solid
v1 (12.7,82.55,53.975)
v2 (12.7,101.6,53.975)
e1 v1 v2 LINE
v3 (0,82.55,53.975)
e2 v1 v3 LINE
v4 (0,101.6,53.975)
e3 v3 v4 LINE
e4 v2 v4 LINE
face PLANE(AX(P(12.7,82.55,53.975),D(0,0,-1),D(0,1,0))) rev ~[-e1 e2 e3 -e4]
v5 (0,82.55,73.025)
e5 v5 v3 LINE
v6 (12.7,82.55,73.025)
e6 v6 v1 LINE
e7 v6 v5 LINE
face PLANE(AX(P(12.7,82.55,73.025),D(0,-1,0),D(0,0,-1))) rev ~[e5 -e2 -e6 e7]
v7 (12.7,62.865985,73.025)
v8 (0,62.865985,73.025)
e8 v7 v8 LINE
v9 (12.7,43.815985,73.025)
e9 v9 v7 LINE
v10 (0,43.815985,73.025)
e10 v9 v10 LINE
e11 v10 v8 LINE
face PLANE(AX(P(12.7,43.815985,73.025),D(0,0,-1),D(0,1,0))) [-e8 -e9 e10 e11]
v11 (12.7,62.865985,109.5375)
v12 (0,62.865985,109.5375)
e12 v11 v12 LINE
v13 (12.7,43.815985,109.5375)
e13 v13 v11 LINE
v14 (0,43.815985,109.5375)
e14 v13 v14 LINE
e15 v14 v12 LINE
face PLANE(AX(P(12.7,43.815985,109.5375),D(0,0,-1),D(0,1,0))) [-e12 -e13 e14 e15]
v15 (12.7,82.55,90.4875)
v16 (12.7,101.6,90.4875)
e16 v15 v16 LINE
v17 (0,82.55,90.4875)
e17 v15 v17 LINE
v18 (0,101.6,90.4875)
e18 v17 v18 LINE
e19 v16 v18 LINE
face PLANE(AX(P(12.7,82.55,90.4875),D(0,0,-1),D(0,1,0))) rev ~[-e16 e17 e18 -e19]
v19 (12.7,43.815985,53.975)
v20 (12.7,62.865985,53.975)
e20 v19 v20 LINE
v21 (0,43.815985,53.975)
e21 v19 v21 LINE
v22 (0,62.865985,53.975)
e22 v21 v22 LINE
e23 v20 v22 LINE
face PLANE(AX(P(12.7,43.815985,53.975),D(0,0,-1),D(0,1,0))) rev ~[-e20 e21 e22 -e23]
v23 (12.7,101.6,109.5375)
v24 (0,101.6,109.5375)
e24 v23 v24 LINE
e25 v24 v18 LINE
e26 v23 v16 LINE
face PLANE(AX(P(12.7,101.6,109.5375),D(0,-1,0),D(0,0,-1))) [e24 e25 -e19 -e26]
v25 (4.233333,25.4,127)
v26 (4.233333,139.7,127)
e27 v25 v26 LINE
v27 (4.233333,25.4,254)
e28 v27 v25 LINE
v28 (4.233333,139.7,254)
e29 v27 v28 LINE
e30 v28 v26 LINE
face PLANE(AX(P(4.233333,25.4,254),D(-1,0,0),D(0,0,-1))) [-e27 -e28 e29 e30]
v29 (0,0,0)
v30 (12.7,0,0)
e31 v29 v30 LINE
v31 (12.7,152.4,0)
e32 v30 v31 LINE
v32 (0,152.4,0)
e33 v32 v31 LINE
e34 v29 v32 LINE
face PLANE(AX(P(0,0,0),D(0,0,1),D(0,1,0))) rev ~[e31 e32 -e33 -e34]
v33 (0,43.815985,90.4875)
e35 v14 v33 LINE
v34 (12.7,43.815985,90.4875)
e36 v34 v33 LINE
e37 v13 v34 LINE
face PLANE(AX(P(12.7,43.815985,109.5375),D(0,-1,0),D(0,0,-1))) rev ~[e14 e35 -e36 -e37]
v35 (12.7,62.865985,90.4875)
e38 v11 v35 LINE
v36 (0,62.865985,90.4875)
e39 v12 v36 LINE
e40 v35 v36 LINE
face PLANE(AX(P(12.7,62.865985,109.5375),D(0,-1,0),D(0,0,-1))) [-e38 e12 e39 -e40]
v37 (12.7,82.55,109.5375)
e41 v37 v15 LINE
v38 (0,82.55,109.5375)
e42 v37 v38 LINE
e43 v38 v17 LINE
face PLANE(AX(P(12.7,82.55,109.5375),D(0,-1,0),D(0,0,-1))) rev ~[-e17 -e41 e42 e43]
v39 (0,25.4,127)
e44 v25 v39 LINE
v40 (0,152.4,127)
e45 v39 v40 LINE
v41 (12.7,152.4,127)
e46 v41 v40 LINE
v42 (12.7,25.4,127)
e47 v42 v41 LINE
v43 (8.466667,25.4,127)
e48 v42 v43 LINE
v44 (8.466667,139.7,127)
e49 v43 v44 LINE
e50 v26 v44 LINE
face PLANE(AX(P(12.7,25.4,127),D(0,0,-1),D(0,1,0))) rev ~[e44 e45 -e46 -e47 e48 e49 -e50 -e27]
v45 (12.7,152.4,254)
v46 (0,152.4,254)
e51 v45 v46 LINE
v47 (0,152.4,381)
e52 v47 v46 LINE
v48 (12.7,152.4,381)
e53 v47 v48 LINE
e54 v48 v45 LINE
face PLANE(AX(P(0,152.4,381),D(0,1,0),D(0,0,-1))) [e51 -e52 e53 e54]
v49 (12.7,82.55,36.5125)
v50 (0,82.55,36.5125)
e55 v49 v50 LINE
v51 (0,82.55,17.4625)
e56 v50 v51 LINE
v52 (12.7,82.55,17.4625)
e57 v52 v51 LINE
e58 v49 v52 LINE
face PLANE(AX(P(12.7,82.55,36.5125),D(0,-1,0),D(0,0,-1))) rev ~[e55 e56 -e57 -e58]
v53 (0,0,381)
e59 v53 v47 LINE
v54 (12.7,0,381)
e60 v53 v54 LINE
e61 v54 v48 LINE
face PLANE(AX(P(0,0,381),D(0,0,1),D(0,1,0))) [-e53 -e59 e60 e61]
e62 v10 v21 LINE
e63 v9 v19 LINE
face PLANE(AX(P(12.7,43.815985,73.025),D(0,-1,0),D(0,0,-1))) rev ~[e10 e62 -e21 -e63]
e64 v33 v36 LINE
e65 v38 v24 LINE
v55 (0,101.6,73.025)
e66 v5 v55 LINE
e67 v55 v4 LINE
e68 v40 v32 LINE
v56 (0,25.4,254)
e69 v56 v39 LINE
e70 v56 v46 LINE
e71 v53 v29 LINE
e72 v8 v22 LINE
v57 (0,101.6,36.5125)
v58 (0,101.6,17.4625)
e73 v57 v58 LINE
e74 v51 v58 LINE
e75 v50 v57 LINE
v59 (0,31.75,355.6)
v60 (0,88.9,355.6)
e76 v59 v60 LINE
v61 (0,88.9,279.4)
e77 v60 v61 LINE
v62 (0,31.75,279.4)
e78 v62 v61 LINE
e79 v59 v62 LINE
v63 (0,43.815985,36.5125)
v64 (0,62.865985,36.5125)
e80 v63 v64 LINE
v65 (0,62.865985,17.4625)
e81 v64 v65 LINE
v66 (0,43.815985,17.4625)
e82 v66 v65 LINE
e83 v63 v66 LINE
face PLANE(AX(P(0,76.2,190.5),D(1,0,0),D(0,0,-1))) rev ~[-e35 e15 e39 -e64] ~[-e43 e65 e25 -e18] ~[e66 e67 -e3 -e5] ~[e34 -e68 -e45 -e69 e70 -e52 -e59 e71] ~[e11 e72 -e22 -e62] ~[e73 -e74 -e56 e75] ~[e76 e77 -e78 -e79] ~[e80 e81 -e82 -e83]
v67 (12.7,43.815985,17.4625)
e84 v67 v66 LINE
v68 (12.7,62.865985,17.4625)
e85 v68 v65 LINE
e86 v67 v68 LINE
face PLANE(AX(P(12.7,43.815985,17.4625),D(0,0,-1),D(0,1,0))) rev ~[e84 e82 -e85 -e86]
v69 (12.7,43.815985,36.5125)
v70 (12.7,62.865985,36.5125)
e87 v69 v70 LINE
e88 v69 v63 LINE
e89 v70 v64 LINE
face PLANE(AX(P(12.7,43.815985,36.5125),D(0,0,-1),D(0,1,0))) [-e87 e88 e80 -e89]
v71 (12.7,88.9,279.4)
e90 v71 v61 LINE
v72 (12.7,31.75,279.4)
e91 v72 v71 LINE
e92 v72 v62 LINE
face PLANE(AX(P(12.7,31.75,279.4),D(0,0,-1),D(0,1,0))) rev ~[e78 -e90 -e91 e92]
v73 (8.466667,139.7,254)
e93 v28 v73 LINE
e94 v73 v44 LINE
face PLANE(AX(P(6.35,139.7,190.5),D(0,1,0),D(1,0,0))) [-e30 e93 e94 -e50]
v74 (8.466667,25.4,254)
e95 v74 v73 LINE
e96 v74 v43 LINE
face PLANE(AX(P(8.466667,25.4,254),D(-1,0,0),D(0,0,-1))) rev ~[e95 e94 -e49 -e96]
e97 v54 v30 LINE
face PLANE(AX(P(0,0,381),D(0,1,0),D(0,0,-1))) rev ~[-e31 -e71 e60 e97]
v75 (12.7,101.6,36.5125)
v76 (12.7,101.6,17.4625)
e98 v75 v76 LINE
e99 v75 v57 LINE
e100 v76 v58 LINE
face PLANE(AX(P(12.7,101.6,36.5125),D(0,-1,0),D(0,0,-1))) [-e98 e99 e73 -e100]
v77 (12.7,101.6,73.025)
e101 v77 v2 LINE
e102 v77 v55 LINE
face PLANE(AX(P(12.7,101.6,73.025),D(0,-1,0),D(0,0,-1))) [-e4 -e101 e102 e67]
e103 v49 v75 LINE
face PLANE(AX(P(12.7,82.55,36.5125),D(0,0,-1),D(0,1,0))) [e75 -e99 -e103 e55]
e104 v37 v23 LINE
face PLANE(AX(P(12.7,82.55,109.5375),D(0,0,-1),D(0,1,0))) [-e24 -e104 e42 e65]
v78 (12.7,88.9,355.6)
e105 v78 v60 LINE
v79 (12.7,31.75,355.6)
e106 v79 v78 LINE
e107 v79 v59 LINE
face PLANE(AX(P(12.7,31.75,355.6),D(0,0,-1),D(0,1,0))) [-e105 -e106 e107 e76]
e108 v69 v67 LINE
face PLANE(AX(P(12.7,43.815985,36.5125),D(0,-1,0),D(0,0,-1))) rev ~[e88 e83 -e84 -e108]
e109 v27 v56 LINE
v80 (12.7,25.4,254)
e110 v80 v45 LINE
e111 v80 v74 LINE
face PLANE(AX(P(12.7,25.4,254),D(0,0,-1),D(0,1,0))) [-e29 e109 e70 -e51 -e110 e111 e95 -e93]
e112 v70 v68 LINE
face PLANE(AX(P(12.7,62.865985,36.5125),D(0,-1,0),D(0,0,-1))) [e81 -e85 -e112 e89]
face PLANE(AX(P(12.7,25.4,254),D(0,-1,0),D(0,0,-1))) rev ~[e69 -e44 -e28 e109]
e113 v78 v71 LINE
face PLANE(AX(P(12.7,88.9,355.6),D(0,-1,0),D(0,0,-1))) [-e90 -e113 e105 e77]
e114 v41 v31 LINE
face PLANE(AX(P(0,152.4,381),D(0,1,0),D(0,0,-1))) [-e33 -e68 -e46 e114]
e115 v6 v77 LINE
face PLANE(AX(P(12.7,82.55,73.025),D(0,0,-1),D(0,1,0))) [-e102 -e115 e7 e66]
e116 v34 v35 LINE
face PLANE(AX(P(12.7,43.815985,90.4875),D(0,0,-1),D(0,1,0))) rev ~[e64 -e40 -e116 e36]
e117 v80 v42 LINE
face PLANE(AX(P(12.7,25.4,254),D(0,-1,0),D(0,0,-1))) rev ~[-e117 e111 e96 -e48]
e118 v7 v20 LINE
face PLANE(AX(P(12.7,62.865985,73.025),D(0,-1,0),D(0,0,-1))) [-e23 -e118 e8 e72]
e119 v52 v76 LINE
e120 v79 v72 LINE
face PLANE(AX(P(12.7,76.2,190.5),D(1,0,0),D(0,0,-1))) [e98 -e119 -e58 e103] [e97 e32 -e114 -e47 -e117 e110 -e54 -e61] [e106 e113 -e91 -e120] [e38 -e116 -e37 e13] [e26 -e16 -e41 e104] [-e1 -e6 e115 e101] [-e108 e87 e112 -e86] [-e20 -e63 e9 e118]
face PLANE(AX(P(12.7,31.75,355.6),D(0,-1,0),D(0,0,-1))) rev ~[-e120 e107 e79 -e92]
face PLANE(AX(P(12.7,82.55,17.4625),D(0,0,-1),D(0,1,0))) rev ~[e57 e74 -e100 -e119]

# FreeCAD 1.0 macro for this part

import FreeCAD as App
import Part
import Sketcher
from FreeCAD import Vector
Q = App.Units.Quantity

doc = App.newDocument("Part")
body = doc.addObject("PartDesign::Body", "Body")

sketch1 = body.newObject("Sketcher::SketchObject", "Sketch")
sketch1.AttachmentSupport = (doc.getObject("YZ_Plane"), [""])
sketch1.MapMode = "FlatFace"
sketch1.addGeometry(Part.LineSegment(Vector(152, 381, 0), Vector(0, 381, 0)), False)
sketch1.addGeometry(Part.LineSegment(Vector(0, 381, 0), Vector(0, 0, 0)), False)
sketch1.addGeometry(Part.LineSegment(Vector(0, 0, 0), Vector(152, 0, 0)), False)
sketch1.addGeometry(Part.LineSegment(Vector(152, 0, 0), Vector(152, 381, 0)), False)
sketch1.addConstraint(Sketcher.Constraint("Coincident", 0, 2, 1, 1))
sketch1.addConstraint(Sketcher.Constraint("Coincident", 1, 2, 2, 1))
sketch1.addConstraint(Sketcher.Constraint("Coincident", 2, 2, 3, 1))
sketch1.addConstraint(Sketcher.Constraint("Coincident", 3, 2, 0, 1))
sketch1.addConstraint(Sketcher.Constraint("Horizontal", 0))
sketch1.addConstraint(Sketcher.Constraint("Vertical", 1))
sketch1.addConstraint(Sketcher.Constraint("Horizontal", 2))
sketch1.addConstraint(Sketcher.Constraint("Vertical", 3))
sketch1.addConstraint(Sketcher.Constraint("Coincident", 1, 2, -1, 1))
sketch1.addConstraint(Sketcher.Constraint("DistanceX", 0, 2, 0, 1, Q("6 in")))
sketch1.addConstraint(Sketcher.Constraint("DistanceY", 1, 2, 1, 1, Q("15 in")))
pad1 = body.newObject("PartDesign::Pad", "Pad")
pad1.Profile = sketch1
pad1.Length = Q("0.5 in")

sketch2 = body.newObject("Sketcher::SketchObject", "Sketch001")
sketch2.AttachmentSupport = (doc.getObject("YZ_Plane"), [""])
sketch2.MapMode = "FlatFace"
sketch2.AttachmentOffset = App.Placement(Vector(0, 0, 0.5 * 25.4), App.Rotation())
sketch2.addGeometry(Part.LineSegment(Vector(152, 254, 0), Vector(25, 254, 0)), False)
sketch2.addGeometry(Part.LineSegment(Vector(25, 254, 0), Vector(25, 127, 0)), False)
sketch2.addGeometry(Part.LineSegment(Vector(25, 127, 0), Vector(152, 127, 0)), False)
sketch2.addGeometry(Part.LineSegment(Vector(152, 127, 0), Vector(152, 254, 0)), False)
sketch2.addConstraint(Sketcher.Constraint("Coincident", 0, 2, 1, 1))
sketch2.addConstraint(Sketcher.Constraint("Coincident", 1, 2, 2, 1))
sketch2.addConstraint(Sketcher.Constraint("Coincident", 2, 2, 3, 1))
sketch2.addConstraint(Sketcher.Constraint("Coincident", 3, 2, 0, 1))
sketch2.addConstraint(Sketcher.Constraint("Horizontal", 0))
sketch2.addConstraint(Sketcher.Constraint("Vertical", 1))
sketch2.addConstraint(Sketcher.Constraint("Horizontal", 2))
sketch2.addConstraint(Sketcher.Constraint("Vertical", 3))
sketch2.addConstraint(Sketcher.Constraint("Equal", 2, 1))
sketch2.addConstraint(Sketcher.Constraint("DistanceX", 0, 2, 0, 1, Q("5 in")))
sketch2.addConstraint(Sketcher.Constraint("DistanceX", -1, 1, 0, 2, Q("1 in")))
sketch2.addConstraint(Sketcher.Constraint("DistanceY", -1, 1, 0, 2, Q("10 in")))
pocket1 = body.newObject("PartDesign::Pocket", "Pocket")
pocket1.Profile = sketch2
pocket1.Length = Q("0.5 in")

sketch3 = body.newObject("Sketcher::SketchObject", "Sketch002")
sketch3.AttachmentSupport = (doc.getObject("YZ_Plane"), [""])
sketch3.MapMode = "FlatFace"
sketch3.AttachmentOffset = App.Placement(Vector(0, 0, 0.5 * 25.4), App.Rotation())
sketch3.addGeometry(Part.LineSegment(Vector(102, 110, 0), Vector(83, 110, 0)), False)
sketch3.addGeometry(Part.LineSegment(Vector(83, 110, 0), Vector(83, 90, 0)), False)
sketch3.addGeometry(Part.LineSegment(Vector(83, 90, 0), Vector(102, 90, 0)), False)
sketch3.addGeometry(Part.LineSegment(Vector(102, 90, 0), Vector(102, 110, 0)), False)
sketch3.addGeometry(Part.LineSegment(Vector(102, 73, 0), Vector(83, 73, 0)), False)
sketch3.addGeometry(Part.LineSegment(Vector(83, 73, 0), Vector(83, 54, 0)), False)
sketch3.addGeometry(Part.LineSegment(Vector(83, 54, 0), Vector(102, 54, 0)), False)
sketch3.addGeometry(Part.LineSegment(Vector(102, 54, 0), Vector(102, 73, 0)), False)
sketch3.addGeometry(Part.LineSegment(Vector(102, 37, 0), Vector(83, 37, 0)), False)
sketch3.addGeometry(Part.LineSegment(Vector(83, 37, 0), Vector(83, 17, 0)), False)
sketch3.addGeometry(Part.LineSegment(Vector(83, 17, 0), Vector(102, 17, 0)), False)
sketch3.addGeometry(Part.LineSegment(Vector(102, 17, 0), Vector(102, 37, 0)), False)
sketch3.addGeometry(Part.LineSegment(Vector(63, 110, 0), Vector(44, 110, 0)), False)
sketch3.addGeometry(Part.LineSegment(Vector(44, 110, 0), Vector(44, 90, 0)), False)
sketch3.addGeometry(Part.LineSegment(Vector(44, 90, 0), Vector(63, 90, 0)), False)
sketch3.addGeometry(Part.LineSegment(Vector(63, 90, 0), Vector(63, 110, 0)), False)
sketch3.addGeometry(Part.LineSegment(Vector(63, 73, 0), Vector(44, 73, 0)), False)
sketch3.addGeometry(Part.LineSegment(Vector(44, 73, 0), Vector(44, 54, 0)), False)
sketch3.addGeometry(Part.LineSegment(Vector(44, 54, 0), Vector(63, 54, 0)), False)
sketch3.addGeometry(Part.LineSegment(Vector(63, 54, 0), Vector(63, 73, 0)), False)
sketch3.addGeometry(Part.LineSegment(Vector(63, 37, 0), Vector(44, 37, 0)), False)
sketch3.addGeometry(Part.LineSegment(Vector(44, 37, 0), Vector(44, 17, 0)), False)
sketch3.addGeometry(Part.LineSegment(Vector(44, 17, 0), Vector(63, 17, 0)), False)
sketch3.addGeometry(Part.LineSegment(Vector(63, 17, 0), Vector(63, 37, 0)), False)
sketch3.addGeometry(Part.LineSegment(Vector(89, 356, 0), Vector(32, 356, 0)), False)
sketch3.addGeometry(Part.LineSegment(Vector(32, 356, 0), Vector(32, 279, 0)), False)
sketch3.addGeometry(Part.LineSegment(Vector(32, 279, 0), Vector(89, 279, 0)), False)
sketch3.addGeometry(Part.LineSegment(Vector(89, 279, 0), Vector(89, 356, 0)), False)
sketch3.addConstraint(Sketcher.Constraint("Coincident", 0, 2, 1, 1))
sketch3.addConstraint(Sketcher.Constraint("Coincident", 1, 2, 2, 1))
sketch3.addConstraint(Sketcher.Constraint("Coincident", 2, 2, 3, 1))
sketch3.addConstraint(Sketcher.Constraint("Coincident", 3, 2, 0, 1))
sketch3.addConstraint(Sketcher.Constraint("Coincident", 4, 2, 5, 1))
sketch3.addConstraint(Sketcher.Constraint("Coincident", 5, 2, 6, 1))
sketch3.addConstraint(Sketcher.Constraint("Coincident", 6, 2, 7, 1))
sketch3.addConstraint(Sketcher.Constraint("Coincident", 7, 2, 4, 1))
sketch3.addConstraint(Sketcher.Constraint("Coincident", 8, 2, 9, 1))
sketch3.addConstraint(Sketcher.Constraint("Coincident", 9, 2, 10, 1))
sketch3.addConstraint(Sketcher.Constraint("Coincident", 10, 2, 11, 1))
sketch3.addConstraint(Sketcher.Constraint("Coincident", 11, 2, 8, 1))
sketch3.addConstraint(Sketcher.Constraint("Coincident", 12, 2, 13, 1))
sketch3.addConstraint(Sketcher.Constraint("Coincident", 13, 2, 14, 1))
sketch3.addConstraint(Sketcher.Constraint("Coincident", 14, 2, 15, 1))
sketch3.addConstraint(Sketcher.Constraint("Coincident", 15, 2, 12, 1))
sketch3.addConstraint(Sketcher.Constraint("Coincident", 16, 2, 17, 1))
sketch3.addConstraint(Sketcher.Constraint("Coincident", 17, 2, 18, 1))
sketch3.addConstraint(Sketcher.Constraint("Coincident", 18, 2, 19, 1))
sketch3.addConstraint(Sketcher.Constraint("Coincident", 19, 2, 16, 1))
sketch3.addConstraint(Sketcher.Constraint("Coincident", 20, 2, 21, 1))
sketch3.addConstraint(Sketcher.Constraint("Coincident", 21, 2, 22, 1))
sketch3.addConstraint(Sketcher.Constraint("Coincident", 22, 2, 23, 1))
sketch3.addConstraint(Sketcher.Constraint("Coincident", 23, 2, 20, 1))
sketch3.addConstraint(Sketcher.Constraint("Coincident", 24, 2, 25, 1))
sketch3.addConstraint(Sketcher.Constraint("Coincident", 25, 2, 26, 1))
sketch3.addConstraint(Sketcher.Constraint("Coincident", 26, 2, 27, 1))
sketch3.addConstraint(Sketcher.Constraint("Coincident", 27, 2, 24, 1))
sketch3.addConstraint(Sketcher.Constraint("Horizontal", 0))
sketch3.addConstraint(Sketcher.Constraint("Vertical", 1))
sketch3.addConstraint(Sketcher.Constraint("Horizontal", 2))
sketch3.addConstraint(Sketcher.Constraint("Vertical", 3))
sketch3.addConstraint(Sketcher.Constraint("Horizontal", 4))
sketch3.addConstraint(Sketcher.Constraint("Vertical", 5))
sketch3.addConstraint(Sketcher.Constraint("Horizontal", 6))
sketch3.addConstraint(Sketcher.Constraint("Vertical", 7))
sketch3.addConstraint(Sketcher.Constraint("Horizontal", 8))
sketch3.addConstraint(Sketcher.Constraint("Vertical", 9))
sketch3.addConstraint(Sketcher.Constraint("Horizontal", 10))
sketch3.addConstraint(Sketcher.Constraint("Vertical", 11))
sketch3.addConstraint(Sketcher.Constraint("Horizontal", 12))
sketch3.addConstraint(Sketcher.Constraint("Vertical", 13))
sketch3.addConstraint(Sketcher.Constraint("Horizontal", 14))
sketch3.addConstraint(Sketcher.Constraint("Vertical", 15))
sketch3.addConstraint(Sketcher.Constraint("Horizontal", 16))
sketch3.addConstraint(Sketcher.Constraint("Vertical", 17))
sketch3.addConstraint(Sketcher.Constraint("Horizontal", 18))
sketch3.addConstraint(Sketcher.Constraint("Vertical", 19))
sketch3.addConstraint(Sketcher.Constraint("Horizontal", 20))
sketch3.addConstraint(Sketcher.Constraint("Vertical", 21))
sketch3.addConstraint(Sketcher.Constraint("Horizontal", 22))
sketch3.addConstraint(Sketcher.Constraint("Vertical", 23))
sketch3.addConstraint(Sketcher.Constraint("Horizontal", 24))
sketch3.addConstraint(Sketcher.Constraint("Vertical", 25))
sketch3.addConstraint(Sketcher.Constraint("Horizontal", 26))
sketch3.addConstraint(Sketcher.Constraint("Vertical", 27))
sketch3.addConstraint(Sketcher.Constraint("Horizontal", 3, 2, 12, 2))
sketch3.addConstraint(Sketcher.Constraint("Horizontal", 2, 2, 13, 2))
sketch3.addConstraint(Sketcher.Constraint("Horizontal", 7, 2, 16, 2))
sketch3.addConstraint(Sketcher.Constraint("Horizontal", 6, 2, 17, 2))
sketch3.addConstraint(Sketcher.Constraint("Horizontal", 11, 2, 20, 2))
sketch3.addConstraint(Sketcher.Constraint("Horizontal", 10, 2, 21, 2))
sketch3.addConstraint(Sketcher.Constraint("Vertical", 1, 2, 4, 2))
sketch3.addConstraint(Sketcher.Constraint("Vertical", 3, 2, 6, 2))
sketch3.addConstraint(Sketcher.Constraint("Vertical", 5, 2, 8, 2))
sketch3.addConstraint(Sketcher.Constraint("Vertical", 7, 2, 10, 2))
sketch3.addConstraint(Sketcher.Constraint("Vertical", 13, 2, 16, 2))
sketch3.addConstraint(Sketcher.Constraint("Vertical", 15, 2, 18, 2))
sketch3.addConstraint(Sketcher.Constraint("Vertical", 17, 2, 20, 2))
sketch3.addConstraint(Sketcher.Constraint("Vertical", 19, 2, 22, 2))
sketch3.addConstraint(Sketcher.Constraint("Equal", 10, 12))
sketch3.addConstraint(Sketcher.Constraint("Equal", 22, 1))
sketch3.addConstraint(Sketcher.Constraint("Equal", 3, 5))
sketch3.addConstraint(Sketcher.Constraint("Equal", 7, 9))
sketch3.addConstraint(Sketcher.Constraint("DistanceY", 25, 2, 25, 1, Q("3 in")))
sketch3.addConstraint(Sketcher.Constraint("DistanceX", -1, 1, 2, 2, Q("4 in")))
sketch3.addConstraint(Sketcher.Constraint("DistanceY", -1, 1, 24, 2, Q("14 in")))
sketch3.addConstraint(Sketcher.Constraint("DistanceX", 24, 2, 0, 2, Q("2 in")))
sketch3.addConstraint(Sketcher.Constraint("DistanceX", 0, 2, 0, 1, Q("0.75 in")))
sketch3.addConstraint(Sketcher.Constraint("DistanceX", 24, 2, 24, 1, Q("2.25 in")))
sketch3.addConstraint(Sketcher.Constraint("DistanceY", -1, 1, 0, 2, Q("4.3125 in")))
sketch3.addConstraint(Sketcher.Constraint("DistanceY", -1, 1, 4, 2, Q("2.875 in")))
sketch3.addConstraint(Sketcher.Constraint("DistanceY", -1, 1, 8, 2, Q("1.4375 in")))
sketch3.addConstraint(Sketcher.Constraint("DistanceX", -1, 1, 12, 2, Q("43.815985 mm")))
pocket2 = body.newObject("PartDesign::Pocket", "Pocket001")
pocket2.Profile = sketch3
pocket2.Length = Q("0.5 in")

sketch4 = body.newObject("Sketcher::SketchObject", "Sketch003")
sketch4.AttachmentSupport = (doc.getObject("XZ_Plane"), [""])
sketch4.MapMode = "FlatFace"
sketch4.AttachmentOffset = App.Placement(Vector(0, 0, -1 * 25.4), App.Rotation())
sketch4.addGeometry(Part.LineSegment(Vector(4.2, 127, 0), Vector(4.2, 254, 0)), False)
sketch4.addGeometry(Part.LineSegment(Vector(4.2, 254, 0), Vector(8.5, 254, 0)), False)
sketch4.addGeometry(Part.LineSegment(Vector(8.5, 254, 0), Vector(8.5, 127, 0)), False)
sketch4.addGeometry(Part.LineSegment(Vector(8.5, 127, 0), Vector(4.2, 127, 0)), False)
sketch4.addConstraint(Sketcher.Constraint("Coincident", 0, 2, 1, 1))
sketch4.addConstraint(Sketcher.Constraint("Coincident", 1, 2, 2, 1))
sketch4.addConstraint(Sketcher.Constraint("Coincident", 2, 2, 3, 1))
sketch4.addConstraint(Sketcher.Constraint("Coincident", 3, 2, 0, 1))
sketch4.addConstraint(Sketcher.Constraint("Vertical", 0))
sketch4.addConstraint(Sketcher.Constraint("Horizontal", 1))
sketch4.addConstraint(Sketcher.Constraint("Vertical", 2))
sketch4.addConstraint(Sketcher.Constraint("Horizontal", 3))
sketch4.addConstraint(Sketcher.Constraint("DistanceY", 0, 1, 0, 2, Q("5 in")))
sketch4.addConstraint(Sketcher.Constraint("DistanceY", -1, 1, 0, 2, Q("10 in")))
sketch4.addConstraint(Sketcher.Constraint("DistanceX", 1, 1, 1, 2, Q("4.233333 mm")))
sketch4.addConstraint(Sketcher.Constraint("DistanceX", -1, 1, 0, 2, Q("4.233333 mm")))
pad2 = body.newObject("PartDesign::Pad", "Pad001")
pad2.Profile = sketch4
pad2.Length = Q("4.5 in")
pad2.Reversed = True

doc.recompute()
